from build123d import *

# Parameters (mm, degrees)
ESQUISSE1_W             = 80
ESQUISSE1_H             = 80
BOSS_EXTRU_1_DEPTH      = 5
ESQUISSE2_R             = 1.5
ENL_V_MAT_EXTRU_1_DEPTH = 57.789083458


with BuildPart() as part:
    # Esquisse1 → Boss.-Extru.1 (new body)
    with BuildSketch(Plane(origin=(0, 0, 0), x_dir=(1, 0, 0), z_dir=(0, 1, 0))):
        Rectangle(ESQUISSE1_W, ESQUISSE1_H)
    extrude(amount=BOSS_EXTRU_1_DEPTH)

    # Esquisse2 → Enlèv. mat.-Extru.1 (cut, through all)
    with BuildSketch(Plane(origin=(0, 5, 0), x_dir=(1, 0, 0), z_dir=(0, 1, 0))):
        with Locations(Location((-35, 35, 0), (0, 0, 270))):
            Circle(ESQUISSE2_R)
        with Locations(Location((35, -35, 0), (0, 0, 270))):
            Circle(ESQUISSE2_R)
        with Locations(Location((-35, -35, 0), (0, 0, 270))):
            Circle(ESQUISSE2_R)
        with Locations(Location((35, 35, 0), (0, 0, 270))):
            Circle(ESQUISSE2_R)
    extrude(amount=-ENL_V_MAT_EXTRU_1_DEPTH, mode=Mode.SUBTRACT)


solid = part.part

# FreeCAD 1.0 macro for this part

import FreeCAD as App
import Part
import Sketcher

V = App.Vector

doc = App.newDocument("Part")
body = doc.addObject("PartDesign::Body", "Body")

# Sketch on XZ plane
sketch1 = doc.addObject("Sketcher::SketchObject", "Sketch")
body.addObject(sketch1)
sketch1.AttachmentSupport = (doc.XZ_Plane, [""])
sketch1.MapMode = "FlatFace"
sketch1.addGeometry([
    Part.LineSegment(V(-40, -40, 0), V(-40, 40, 0)),
    Part.LineSegment(V(-40, 40, 0), V(40, 40, 0)),
    Part.LineSegment(V(40, 40, 0), V(40, -40, 0)),
    Part.LineSegment(V(40, -40, 0), V(-40, -40, 0)),
], False)
sketch1.addConstraint([
    Sketcher.Constraint("Coincident", 0, 2, 1, 1),
    Sketcher.Constraint("Coincident", 1, 2, 2, 1),
    Sketcher.Constraint("Coincident", 2, 2, 3, 1),
    Sketcher.Constraint("Coincident", 3, 2, 0, 1),
    Sketcher.Constraint("Vertical", 0),
    Sketcher.Constraint("Horizontal", 1),
    Sketcher.Constraint("Vertical", 2),
    Sketcher.Constraint("Horizontal", 3),
    Sketcher.Constraint("Symmetric", 0, 2, 2, 2, -1, 1),
    Sketcher.Constraint("Equal", 3, 0),
    Sketcher.Constraint("DistanceX", 1, 1, 1, 2, 80.0),
])
pad1 = doc.addObject("PartDesign::Pad", "Pad")
body.addObject(pad1)
pad1.Profile = sketch1
pad1.Length = 5
pad1.Reversed = True

# Sketch on XZ plane
sketch2 = doc.addObject("Sketcher::SketchObject", "Sketch001")
body.addObject(sketch2)
sketch2.AttachmentSupport = (doc.XZ_Plane, [""])
sketch2.MapMode = "FlatFace"
sketch2.AttachmentOffset = App.Placement(V(0, 0, -5), App.Rotation())
sketch2.addGeometry([
    Part.Circle(V(-35, -35, 0), V(0, 0, 1), 1.5),
    Part.Circle(V(35, 35, 0), V(0, 0, 1), 1.5),
    Part.Circle(V(-35, 35, 0), V(0, 0, 1), 1.5),
    Part.Circle(V(35, -35, 0), V(0, 0, 1), 1.5),
], False)
sketch2.addConstraint([
    Sketcher.Constraint("Equal", 0, 1),
    Sketcher.Constraint("Equal", 1, 2),
    Sketcher.Constraint("Equal", 2, 3),
    Sketcher.Constraint("Symmetric", 0, 3, 1, 3, -1, 1),
    Sketcher.Constraint("Symmetric", 2, 3, 3, 3, -1, 1),
    Sketcher.Constraint("Symmetric", 1, 3, 2, 3, -2),
    Sketcher.Constraint("Diameter", 0, 3.0),
    Sketcher.Constraint("DistanceX", 0, 3, -1, 1, 35.0),
    Sketcher.Constraint("DistanceY", 0, 3, -1, 1, 35.0),
])
pocket1 = doc.addObject("PartDesign::Pocket", "Pocket")
body.addObject(pocket1)
pocket1.Profile = sketch2
pocket1.Type = "ThroughAll"
pocket1.Reversed = True

doc.recompute()
